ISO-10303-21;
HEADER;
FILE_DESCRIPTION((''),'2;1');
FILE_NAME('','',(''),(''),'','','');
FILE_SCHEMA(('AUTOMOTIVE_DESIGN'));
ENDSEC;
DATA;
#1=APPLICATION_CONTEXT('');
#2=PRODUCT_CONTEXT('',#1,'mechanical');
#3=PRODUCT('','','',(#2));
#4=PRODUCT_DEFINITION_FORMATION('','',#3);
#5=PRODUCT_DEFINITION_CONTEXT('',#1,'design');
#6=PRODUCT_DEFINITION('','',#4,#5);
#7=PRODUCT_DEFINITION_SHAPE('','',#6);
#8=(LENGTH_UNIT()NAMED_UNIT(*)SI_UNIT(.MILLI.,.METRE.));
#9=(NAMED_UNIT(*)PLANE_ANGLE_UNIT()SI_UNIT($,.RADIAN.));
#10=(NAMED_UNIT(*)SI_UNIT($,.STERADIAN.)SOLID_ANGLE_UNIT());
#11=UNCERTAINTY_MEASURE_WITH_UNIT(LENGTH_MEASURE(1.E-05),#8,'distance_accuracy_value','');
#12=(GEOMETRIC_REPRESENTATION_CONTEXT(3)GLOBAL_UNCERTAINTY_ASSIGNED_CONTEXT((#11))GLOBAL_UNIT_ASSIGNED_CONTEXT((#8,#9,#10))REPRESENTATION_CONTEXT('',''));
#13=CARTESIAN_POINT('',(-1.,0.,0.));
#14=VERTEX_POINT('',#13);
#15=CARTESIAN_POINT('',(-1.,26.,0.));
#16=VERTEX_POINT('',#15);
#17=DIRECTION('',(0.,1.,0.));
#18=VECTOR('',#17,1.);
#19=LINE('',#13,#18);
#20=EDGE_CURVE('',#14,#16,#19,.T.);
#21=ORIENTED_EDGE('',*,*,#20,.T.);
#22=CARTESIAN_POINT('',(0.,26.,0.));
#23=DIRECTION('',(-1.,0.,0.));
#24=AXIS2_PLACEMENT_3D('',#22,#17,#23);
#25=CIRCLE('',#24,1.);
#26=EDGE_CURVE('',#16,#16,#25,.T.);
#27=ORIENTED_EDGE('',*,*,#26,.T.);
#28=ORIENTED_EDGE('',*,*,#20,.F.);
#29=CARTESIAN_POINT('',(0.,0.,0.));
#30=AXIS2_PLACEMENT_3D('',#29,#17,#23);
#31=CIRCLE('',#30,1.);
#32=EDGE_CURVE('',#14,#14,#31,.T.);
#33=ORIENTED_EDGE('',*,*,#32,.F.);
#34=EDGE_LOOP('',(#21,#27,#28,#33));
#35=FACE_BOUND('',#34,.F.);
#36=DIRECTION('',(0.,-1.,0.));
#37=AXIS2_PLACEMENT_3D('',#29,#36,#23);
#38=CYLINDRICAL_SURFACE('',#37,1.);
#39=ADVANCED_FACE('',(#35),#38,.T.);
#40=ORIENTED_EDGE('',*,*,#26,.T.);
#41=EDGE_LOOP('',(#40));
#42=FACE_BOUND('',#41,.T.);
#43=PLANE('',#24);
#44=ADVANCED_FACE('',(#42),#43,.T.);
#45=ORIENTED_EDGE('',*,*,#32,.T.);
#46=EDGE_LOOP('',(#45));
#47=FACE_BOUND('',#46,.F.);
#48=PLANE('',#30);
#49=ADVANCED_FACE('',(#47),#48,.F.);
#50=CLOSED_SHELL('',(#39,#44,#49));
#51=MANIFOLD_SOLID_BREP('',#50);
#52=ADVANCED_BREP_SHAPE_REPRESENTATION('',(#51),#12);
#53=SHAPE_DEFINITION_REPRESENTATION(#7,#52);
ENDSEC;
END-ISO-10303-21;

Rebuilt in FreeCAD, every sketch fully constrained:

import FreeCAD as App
import Part
import Sketcher

doc = App.newDocument("Part")
body = doc.addObject("PartDesign::Body", "Body")

# Sketch on XZ plane
sketch1 = body.newObject("Sketcher::SketchObject", "Sketch")
sketch1.AttachmentSupport = (doc.getObject("XZ_Plane"), [""])
sketch1.MapMode = "FlatFace"
sketch1.addGeometry(Part.Circle(App.Vector(0, 0, 0), App.Vector(0, 0, 1), 1), False)
sketch1.addConstraint([
    Sketcher.Constraint("Coincident", 0, 3, -1, 1),
    Sketcher.Constraint("Diameter", 0, 2.0),
])
pad1 = body.newObject("PartDesign::Pad", "Pad")
pad1.Profile = sketch1
pad1.Length = 26
pad1.Reversed = True

doc.recompute()
